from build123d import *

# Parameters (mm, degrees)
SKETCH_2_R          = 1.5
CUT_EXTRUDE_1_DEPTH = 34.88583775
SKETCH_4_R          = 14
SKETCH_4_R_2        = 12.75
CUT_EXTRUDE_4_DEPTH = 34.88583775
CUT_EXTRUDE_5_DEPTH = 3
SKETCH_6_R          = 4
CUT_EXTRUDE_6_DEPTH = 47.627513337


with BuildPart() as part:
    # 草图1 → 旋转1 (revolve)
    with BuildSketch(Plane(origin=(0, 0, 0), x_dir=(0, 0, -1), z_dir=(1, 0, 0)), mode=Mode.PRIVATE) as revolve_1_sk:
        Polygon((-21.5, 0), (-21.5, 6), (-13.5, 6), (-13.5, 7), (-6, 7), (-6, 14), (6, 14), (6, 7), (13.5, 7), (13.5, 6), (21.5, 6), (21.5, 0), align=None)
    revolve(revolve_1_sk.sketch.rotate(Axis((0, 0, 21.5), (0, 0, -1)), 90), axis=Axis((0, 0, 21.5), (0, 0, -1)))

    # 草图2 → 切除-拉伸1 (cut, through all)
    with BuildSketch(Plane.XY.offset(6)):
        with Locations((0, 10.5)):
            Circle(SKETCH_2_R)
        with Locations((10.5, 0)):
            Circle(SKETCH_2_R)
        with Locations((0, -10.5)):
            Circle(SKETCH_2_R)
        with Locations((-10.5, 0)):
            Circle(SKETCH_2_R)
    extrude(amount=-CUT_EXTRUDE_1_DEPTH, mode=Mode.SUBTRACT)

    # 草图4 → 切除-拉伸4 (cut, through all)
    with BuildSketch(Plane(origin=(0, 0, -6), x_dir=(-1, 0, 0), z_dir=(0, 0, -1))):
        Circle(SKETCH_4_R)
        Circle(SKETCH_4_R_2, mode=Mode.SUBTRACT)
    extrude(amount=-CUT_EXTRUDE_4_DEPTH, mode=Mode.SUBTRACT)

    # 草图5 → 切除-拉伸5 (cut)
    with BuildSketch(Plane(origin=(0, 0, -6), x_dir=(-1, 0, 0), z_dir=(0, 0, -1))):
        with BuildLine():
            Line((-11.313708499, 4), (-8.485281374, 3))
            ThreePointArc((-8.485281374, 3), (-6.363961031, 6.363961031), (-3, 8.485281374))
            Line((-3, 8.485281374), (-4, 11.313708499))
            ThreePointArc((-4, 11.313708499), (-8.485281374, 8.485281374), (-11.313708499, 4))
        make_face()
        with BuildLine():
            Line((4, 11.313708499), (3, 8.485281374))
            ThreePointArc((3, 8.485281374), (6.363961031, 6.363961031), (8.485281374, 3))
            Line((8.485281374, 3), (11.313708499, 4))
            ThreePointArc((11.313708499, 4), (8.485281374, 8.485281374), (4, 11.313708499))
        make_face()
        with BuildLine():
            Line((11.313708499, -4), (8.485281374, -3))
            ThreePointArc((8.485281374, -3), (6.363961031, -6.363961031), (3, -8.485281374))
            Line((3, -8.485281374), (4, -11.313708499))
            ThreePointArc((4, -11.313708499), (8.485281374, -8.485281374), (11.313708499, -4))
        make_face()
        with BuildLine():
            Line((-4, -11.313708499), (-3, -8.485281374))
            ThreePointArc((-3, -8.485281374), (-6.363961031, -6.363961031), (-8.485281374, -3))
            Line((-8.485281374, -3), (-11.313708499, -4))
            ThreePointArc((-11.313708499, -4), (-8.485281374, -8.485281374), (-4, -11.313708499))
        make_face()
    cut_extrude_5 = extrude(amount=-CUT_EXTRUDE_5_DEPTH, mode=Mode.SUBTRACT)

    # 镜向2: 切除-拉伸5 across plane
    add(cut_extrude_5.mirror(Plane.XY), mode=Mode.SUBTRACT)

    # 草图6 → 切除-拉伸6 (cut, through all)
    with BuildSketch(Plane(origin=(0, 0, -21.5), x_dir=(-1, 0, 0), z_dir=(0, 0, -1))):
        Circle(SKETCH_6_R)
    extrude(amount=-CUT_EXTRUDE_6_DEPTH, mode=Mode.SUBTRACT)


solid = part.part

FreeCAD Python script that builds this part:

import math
import FreeCAD as App
import Part
import Sketcher

V = App.Vector

doc = App.newDocument("Part")
params = doc.addObject("Spreadsheet::Sheet", "Params")
for row, (alias, value) in enumerate([
    ("sketch1_width", "6 mm"),
    ("sketch1_width2", "1 mm"),
    ("sketch1_width3", "7 mm"),
    ("sketch1_height", "43 mm"),
    ("sketch1_height2", "8 mm"),
    ("revolution_angle", "360 deg"),
    ("sketch2_diameter", "3 mm"),
    ("sketch3_diameter", "28 mm"),
    ("sketch3_diameter2", "25.5 mm"),
    ("sketch4_radius", "9 mm"),
    ("sketch4_radius2", "12 mm"),
    ("pocket3_length", "3 mm"),
    ("sketch5_diameter", "8 mm"),
], start=1):
    params.set(f"A{row}", alias)
    params.set(f"B{row}", "=" + value)
    params.setAlias(f"B{row}", alias)

body = doc.addObject("PartDesign::Body", "Body")

# Sketch on YZ plane
sketch1 = doc.addObject("Sketcher::SketchObject", "Sketch")
body.addObject(sketch1)
sketch1.AttachmentSupport = (doc.YZ_Plane, [""])
sketch1.MapMode = "FlatFace"
sketch1.addGeometry([
    Part.LineSegment(V(6, 21.5, 0), V(0, 21.5, 0)),  # 0
    Part.LineSegment(V(0, 21.5, 0), V(0, -21.5, 0)),  # 1
    Part.LineSegment(V(0, -21.5, 0), V(6, -21.5, 0)),  # 2
    Part.LineSegment(V(6, -21.5, 0), V(6, -13.5, 0)),  # 3
    Part.LineSegment(V(6, -13.5, 0), V(7, -13.5, 0)),  # 4
    Part.LineSegment(V(7, -13.5, 0), V(7, -6, 0)),  # 5
    Part.LineSegment(V(7, -6, 0), V(14, -6, 0)),  # 6
    Part.LineSegment(V(14, -6, 0), V(14, 6, 0)),  # 7
    Part.LineSegment(V(14, 6, 0), V(7, 6, 0)),  # 8
    Part.LineSegment(V(7, 6, 0), V(7, 13.5, 0)),  # 9
    Part.LineSegment(V(7, 13.5, 0), V(6, 13.5, 0)),  # 10
    Part.LineSegment(V(6, 13.5, 0), V(6, 21.5, 0)),  # 11
], False)
sketch1.addConstraint([
    Sketcher.Constraint("Coincident", 0, 2, 1, 1),
    Sketcher.Constraint("Coincident", 1, 2, 2, 1),
    Sketcher.Constraint("Coincident", 2, 2, 3, 1),
    Sketcher.Constraint("Coincident", 3, 2, 4, 1),
    Sketcher.Constraint("Coincident", 4, 2, 5, 1),
    Sketcher.Constraint("Coincident", 5, 2, 6, 1),
    Sketcher.Constraint("Coincident", 6, 2, 7, 1),
    Sketcher.Constraint("Coincident", 7, 2, 8, 1),
    Sketcher.Constraint("Coincident", 8, 2, 9, 1),
    Sketcher.Constraint("Coincident", 9, 2, 10, 1),
    Sketcher.Constraint("Coincident", 10, 2, 11, 1),
    Sketcher.Constraint("Coincident", 11, 2, 0, 1),
    Sketcher.Constraint("Horizontal", 0),
    Sketcher.Constraint("Vertical", 1),
    Sketcher.Constraint("Horizontal", 2),
    Sketcher.Constraint("Vertical", 3),
    Sketcher.Constraint("Horizontal", 4),
    Sketcher.Constraint("Vertical", 5),
    Sketcher.Constraint("Horizontal", 6),
    Sketcher.Constraint("Vertical", 7),
    Sketcher.Constraint("Horizontal", 8),
    Sketcher.Constraint("Vertical", 9),
    Sketcher.Constraint("Horizontal", 10),
    Sketcher.Constraint("Vertical", 11),
    Sketcher.Constraint("Symmetric", 0, 2, 1, 2, -1, 1),
    Sketcher.Constraint("Symmetric", 5, 2, 8, 2, -1),
    Sketcher.Constraint("Symmetric", 3, 2, 10, 2, -1),
    Sketcher.Constraint("DistanceX", 0, 2, 0, 1, 6.0),
    Sketcher.Constraint("DistanceX", 4, 1, 4, 2, 1.0),
    Sketcher.Constraint("DistanceX", 6, 1, 6, 2, 7.0),
    Sketcher.Constraint("DistanceY", 1, 2, 1, 1, 43.0),
    Sketcher.Constraint("DistanceY", 3, 1, 3, 2, 8.0),
    Sketcher.Constraint("DistanceY", 7, 1, 7, 2, 12.0),
])
sketch1.setExpression("Constraints[27]", "Params.sketch1_width")
sketch1.setExpression("Constraints[28]", "Params.sketch1_width2")
sketch1.setExpression("Constraints[29]", "Params.sketch1_width3")
sketch1.setExpression("Constraints[30]", "Params.sketch1_height")
sketch1.setExpression("Constraints[31]", "Params.sketch1_height2")
revolution = doc.addObject("PartDesign::Revolution", "Revolution")
body.addObject(revolution)
revolution.Profile = sketch1
revolution.ReferenceAxis = (sketch1, ["V_Axis"])
revolution.setExpression("Angle", "Params.revolution_angle")

# Sketch on XY plane
sketch2 = doc.addObject("Sketcher::SketchObject", "Sketch001")
body.addObject(sketch2)
sketch2.AttachmentSupport = (doc.XY_Plane, [""])
sketch2.MapMode = "FlatFace"
sketch2.AttachmentOffset = App.Placement(V(0, 0, 6), App.Rotation())
sketch2.addGeometry([
    Part.Circle(V(0, 10.5, 0), V(0, 0, 1), 1.5),
    Part.Circle(V(10.5, 0, 0), V(0, 0, 1), 1.5),
    Part.Circle(V(0, -10.5, 0), V(0, 0, 1), 1.5),
    Part.Circle(V(-10.5, 0, 0), V(0, 0, 1), 1.5),
], False)
sketch2.addConstraint([
    Sketcher.Constraint("Equal", 0, 1),
    Sketcher.Constraint("Equal", 1, 2),
    Sketcher.Constraint("Equal", 2, 3),
    Sketcher.Constraint("Symmetric", 0, 3, 2, 3, -1, 1),
    Sketcher.Constraint("Symmetric", 1, 3, 3, 3, -1, 1),
    Sketcher.Constraint("PointOnObject", 0, 3, -2),
    Sketcher.Constraint("PointOnObject", 1, 3, -1),
    Sketcher.Constraint("Diameter", 0, 3.0),
    Sketcher.Constraint("DistanceY", 2, 3, 0, 3, 21.0),
    Sketcher.Constraint("DistanceX", 3, 3, 1, 3, 21.0),
])
sketch2.setExpression("Constraints[7]", "Params.sketch2_diameter")
pocket1 = doc.addObject("PartDesign::Pocket", "Pocket")
body.addObject(pocket1)
pocket1.Profile = sketch2
pocket1.Type = "ThroughAll"

# Sketch on XY plane
sketch3 = doc.addObject("Sketcher::SketchObject", "Sketch002")
body.addObject(sketch3)
sketch3.AttachmentSupport = (doc.XY_Plane, [""])
sketch3.MapMode = "FlatFace"
sketch3.AttachmentOffset = App.Placement(V(0, 0, -6), App.Rotation())
sketch3.addGeometry([
    Part.Circle(V(0, 0, 0), V(0, 0, 1), 14),
    Part.Circle(V(0, 0, 0), V(0, 0, 1), 13),
], False)
sketch3.addConstraint([
    Sketcher.Constraint("Coincident", 0, 3, -1, 1),
    Sketcher.Constraint("Coincident", 1, 3, -1, 1),
    Sketcher.Constraint("Diameter", 0, 28.0),
    Sketcher.Constraint("Diameter", 1, 25.5),
])
sketch3.setExpression("Constraints[2]", "Params.sketch3_diameter")
sketch3.setExpression("Constraints[3]", "Params.sketch3_diameter2")
pocket2 = doc.addObject("PartDesign::Pocket", "Pocket001")
body.addObject(pocket2)
pocket2.Profile = sketch3
pocket2.Type = "ThroughAll"
pocket2.Reversed = True

# Sketch on XY plane
sketch4 = doc.addObject("Sketcher::SketchObject", "Sketch003")
body.addObject(sketch4)
sketch4.AttachmentSupport = (doc.XY_Plane, [""])
sketch4.MapMode = "FlatFace"
sketch4.AttachmentOffset = App.Placement(V(0, 0, -6), App.Rotation())
sketch4.addGeometry([
    Part.LineSegment(V(11.3, 4, 0), V(8.5, 3, 0)),  # 0
    Part.ArcOfCircle(Part.Circle(V(0, 0, 0), V(0, 0, 1), 9), math.radians(19), math.radians(71)),  # 1
    Part.LineSegment(V(3, 8.5, 0), V(4, 11.3, 0)),  # 2
    Part.ArcOfCircle(Part.Circle(V(0, 0, 0), V(0, 0, 1), 12), math.radians(19), math.radians(71)),  # 3
    Part.LineSegment(V(-4, 11.3, 0), V(-3, 8.5, 0)),  # 4
    Part.ArcOfCircle(Part.Circle(V(0, 0, 0), V(0, 0, 1), 9), math.radians(109), math.radians(161)),  # 5
    Part.LineSegment(V(-8.5, 3, 0), V(-11.3, 4, 0)),  # 6
    Part.ArcOfCircle(Part.Circle(V(0, 0, 0), V(0, 0, 1), 12), math.radians(109), math.radians(161)),  # 7
    Part.LineSegment(V(-11.3, -4, 0), V(-8.5, -3, 0)),  # 8
    Part.ArcOfCircle(Part.Circle(V(0, 0, 0), V(0, 0, 1), 9), math.radians(-161), math.radians(-109)),  # 9
    Part.LineSegment(V(-3, -8.5, 0), V(-4, -11.3, 0)),  # 10
    Part.ArcOfCircle(Part.Circle(V(0, 0, 0), V(0, 0, 1), 12), math.radians(-161), math.radians(-109)),  # 11
    Part.LineSegment(V(4, -11.3, 0), V(3, -8.5, 0)),  # 12
    Part.ArcOfCircle(Part.Circle(V(0, 0, 0), V(0, 0, 1), 9), math.radians(-71), math.radians(-19)),  # 13
    Part.LineSegment(V(8.5, -3, 0), V(11.3, -4, 0)),  # 14
    Part.ArcOfCircle(Part.Circle(V(0, 0, 0), V(0, 0, 1), 12), math.radians(-71), math.radians(-19)),  # 15
], False)
sketch4.addConstraint([
    Sketcher.Constraint("Coincident", 0, 2, 1, 1),
    Sketcher.Constraint("Coincident", 1, 2, 2, 1),
    Sketcher.Constraint("Coincident", 2, 2, 3, 2),
    Sketcher.Constraint("Coincident", 3, 1, 0, 1),
    Sketcher.Constraint("Coincident", 4, 2, 5, 1),
    Sketcher.Constraint("Coincident", 5, 2, 6, 1),
    Sketcher.Constraint("Coincident", 6, 2, 7, 2),
    Sketcher.Constraint("Coincident", 7, 1, 4, 1),
    Sketcher.Constraint("Coincident", 8, 2, 9, 1),
    Sketcher.Constraint("Coincident", 9, 2, 10, 1),
    Sketcher.Constraint("Coincident", 10, 2, 11, 2),
    Sketcher.Constraint("Coincident", 11, 1, 8, 1),
    Sketcher.Constraint("Coincident", 12, 2, 13, 1),
    Sketcher.Constraint("Coincident", 13, 2, 14, 1),
    Sketcher.Constraint("Coincident", 14, 2, 15, 2),
    Sketcher.Constraint("Coincident", 15, 1, 12, 1),
    Sketcher.Constraint("Coincident", 1, 3, -1, 1),
    Sketcher.Constraint("Coincident", 3, 3, -1, 1),
    Sketcher.Constraint("Coincident", 5, 3, -1, 1),
    Sketcher.Constraint("Coincident", 7, 3, -1, 1),
    Sketcher.Constraint("Coincident", 9, 3, -1, 1),
    Sketcher.Constraint("Coincident", 11, 3, -1, 1),
    Sketcher.Constraint("Coincident", 13, 3, -1, 1),
    Sketcher.Constraint("Coincident", 15, 3, -1, 1),
    Sketcher.Constraint("Equal", 1, 5),
    Sketcher.Constraint("Equal", 3, 7),
    Sketcher.Constraint("Equal", 5, 9),
    Sketcher.Constraint("Equal", 7, 11),
    Sketcher.Constraint("Equal", 9, 13),
    Sketcher.Constraint("Equal", 11, 15),
    Sketcher.Constraint("Perpendicular", 0, 4),
    Sketcher.Constraint("Perpendicular", 2, 6),
    Sketcher.Constraint("Perpendicular", 4, 8),
    Sketcher.Constraint("Perpendicular", 6, 10),
    Sketcher.Constraint("Perpendicular", 8, 12),
    Sketcher.Constraint("Perpendicular", 10, 14),
    Sketcher.Constraint("Horizontal", 1, 2, 4, 2),
    Sketcher.Constraint("Horizontal", 0, 2, 5, 2),
    Sketcher.Constraint("Horizontal", 3, 1, 6, 2),
    Sketcher.Constraint("Horizontal", 9, 2, 12, 2),
    Sketcher.Constraint("Horizontal", 8, 2, 13, 2),
    Sketcher.Constraint("Vertical", 5, 2, 8, 2),
    Sketcher.Constraint("Vertical", 4, 2, 9, 2),
    Sketcher.Constraint("Radius", 1, 9.0),
    Sketcher.Constraint("Radius", 3, 12.0),
    Sketcher.Constraint("DistanceY", -1, 1, 0, 2, 3.0),
    Sketcher.Constraint("DistanceX", -1, 1, 1, 2, 3.0),
    Sketcher.Constraint("DistanceX", -1, 1, 2, 2, 4.0),
])
sketch4.setExpression("Constraints[43]", "Params.sketch4_radius")
sketch4.setExpression("Constraints[44]", "Params.sketch4_radius2")
pocket3 = doc.addObject("PartDesign::Pocket", "Pocket002")
body.addObject(pocket3)
pocket3.Profile = sketch4
pocket3.setExpression("Length", "Params.pocket3_length")
pocket3.Reversed = True
doc.recompute()

mirrored = doc.addObject("PartDesign::Mirrored", "Mirrored")
body.addObject(mirrored)
mirrored.Originals = [pocket3]
mirrored.MirrorPlane = (doc.XY_Plane, [""])
body.Tip = mirrored

# Sketch on XY plane
sketch5 = doc.addObject("Sketcher::SketchObject", "Sketch004")
body.addObject(sketch5)
sketch5.AttachmentSupport = (doc.XY_Plane, [""])
sketch5.MapMode = "FlatFace"
sketch5.AttachmentOffset = App.Placement(V(0, 0, -21.5), App.Rotation())
sketch5.addGeometry(Part.Circle(V(0, 0, 0), V(0, 0, 1), 4), False)
sketch5.addConstraint([
    Sketcher.Constraint("Coincident", 0, 3, -1, 1),
    Sketcher.Constraint("Diameter", 0, 8.0),
])
sketch5.setExpression("Constraints[1]", "Params.sketch5_diameter")
pocket4 = doc.addObject("PartDesign::Pocket", "Pocket003")
body.addObject(pocket4)
pocket4.Profile = sketch5
pocket4.Type = "ThroughAll"
pocket4.Reversed = True

doc.recompute()
